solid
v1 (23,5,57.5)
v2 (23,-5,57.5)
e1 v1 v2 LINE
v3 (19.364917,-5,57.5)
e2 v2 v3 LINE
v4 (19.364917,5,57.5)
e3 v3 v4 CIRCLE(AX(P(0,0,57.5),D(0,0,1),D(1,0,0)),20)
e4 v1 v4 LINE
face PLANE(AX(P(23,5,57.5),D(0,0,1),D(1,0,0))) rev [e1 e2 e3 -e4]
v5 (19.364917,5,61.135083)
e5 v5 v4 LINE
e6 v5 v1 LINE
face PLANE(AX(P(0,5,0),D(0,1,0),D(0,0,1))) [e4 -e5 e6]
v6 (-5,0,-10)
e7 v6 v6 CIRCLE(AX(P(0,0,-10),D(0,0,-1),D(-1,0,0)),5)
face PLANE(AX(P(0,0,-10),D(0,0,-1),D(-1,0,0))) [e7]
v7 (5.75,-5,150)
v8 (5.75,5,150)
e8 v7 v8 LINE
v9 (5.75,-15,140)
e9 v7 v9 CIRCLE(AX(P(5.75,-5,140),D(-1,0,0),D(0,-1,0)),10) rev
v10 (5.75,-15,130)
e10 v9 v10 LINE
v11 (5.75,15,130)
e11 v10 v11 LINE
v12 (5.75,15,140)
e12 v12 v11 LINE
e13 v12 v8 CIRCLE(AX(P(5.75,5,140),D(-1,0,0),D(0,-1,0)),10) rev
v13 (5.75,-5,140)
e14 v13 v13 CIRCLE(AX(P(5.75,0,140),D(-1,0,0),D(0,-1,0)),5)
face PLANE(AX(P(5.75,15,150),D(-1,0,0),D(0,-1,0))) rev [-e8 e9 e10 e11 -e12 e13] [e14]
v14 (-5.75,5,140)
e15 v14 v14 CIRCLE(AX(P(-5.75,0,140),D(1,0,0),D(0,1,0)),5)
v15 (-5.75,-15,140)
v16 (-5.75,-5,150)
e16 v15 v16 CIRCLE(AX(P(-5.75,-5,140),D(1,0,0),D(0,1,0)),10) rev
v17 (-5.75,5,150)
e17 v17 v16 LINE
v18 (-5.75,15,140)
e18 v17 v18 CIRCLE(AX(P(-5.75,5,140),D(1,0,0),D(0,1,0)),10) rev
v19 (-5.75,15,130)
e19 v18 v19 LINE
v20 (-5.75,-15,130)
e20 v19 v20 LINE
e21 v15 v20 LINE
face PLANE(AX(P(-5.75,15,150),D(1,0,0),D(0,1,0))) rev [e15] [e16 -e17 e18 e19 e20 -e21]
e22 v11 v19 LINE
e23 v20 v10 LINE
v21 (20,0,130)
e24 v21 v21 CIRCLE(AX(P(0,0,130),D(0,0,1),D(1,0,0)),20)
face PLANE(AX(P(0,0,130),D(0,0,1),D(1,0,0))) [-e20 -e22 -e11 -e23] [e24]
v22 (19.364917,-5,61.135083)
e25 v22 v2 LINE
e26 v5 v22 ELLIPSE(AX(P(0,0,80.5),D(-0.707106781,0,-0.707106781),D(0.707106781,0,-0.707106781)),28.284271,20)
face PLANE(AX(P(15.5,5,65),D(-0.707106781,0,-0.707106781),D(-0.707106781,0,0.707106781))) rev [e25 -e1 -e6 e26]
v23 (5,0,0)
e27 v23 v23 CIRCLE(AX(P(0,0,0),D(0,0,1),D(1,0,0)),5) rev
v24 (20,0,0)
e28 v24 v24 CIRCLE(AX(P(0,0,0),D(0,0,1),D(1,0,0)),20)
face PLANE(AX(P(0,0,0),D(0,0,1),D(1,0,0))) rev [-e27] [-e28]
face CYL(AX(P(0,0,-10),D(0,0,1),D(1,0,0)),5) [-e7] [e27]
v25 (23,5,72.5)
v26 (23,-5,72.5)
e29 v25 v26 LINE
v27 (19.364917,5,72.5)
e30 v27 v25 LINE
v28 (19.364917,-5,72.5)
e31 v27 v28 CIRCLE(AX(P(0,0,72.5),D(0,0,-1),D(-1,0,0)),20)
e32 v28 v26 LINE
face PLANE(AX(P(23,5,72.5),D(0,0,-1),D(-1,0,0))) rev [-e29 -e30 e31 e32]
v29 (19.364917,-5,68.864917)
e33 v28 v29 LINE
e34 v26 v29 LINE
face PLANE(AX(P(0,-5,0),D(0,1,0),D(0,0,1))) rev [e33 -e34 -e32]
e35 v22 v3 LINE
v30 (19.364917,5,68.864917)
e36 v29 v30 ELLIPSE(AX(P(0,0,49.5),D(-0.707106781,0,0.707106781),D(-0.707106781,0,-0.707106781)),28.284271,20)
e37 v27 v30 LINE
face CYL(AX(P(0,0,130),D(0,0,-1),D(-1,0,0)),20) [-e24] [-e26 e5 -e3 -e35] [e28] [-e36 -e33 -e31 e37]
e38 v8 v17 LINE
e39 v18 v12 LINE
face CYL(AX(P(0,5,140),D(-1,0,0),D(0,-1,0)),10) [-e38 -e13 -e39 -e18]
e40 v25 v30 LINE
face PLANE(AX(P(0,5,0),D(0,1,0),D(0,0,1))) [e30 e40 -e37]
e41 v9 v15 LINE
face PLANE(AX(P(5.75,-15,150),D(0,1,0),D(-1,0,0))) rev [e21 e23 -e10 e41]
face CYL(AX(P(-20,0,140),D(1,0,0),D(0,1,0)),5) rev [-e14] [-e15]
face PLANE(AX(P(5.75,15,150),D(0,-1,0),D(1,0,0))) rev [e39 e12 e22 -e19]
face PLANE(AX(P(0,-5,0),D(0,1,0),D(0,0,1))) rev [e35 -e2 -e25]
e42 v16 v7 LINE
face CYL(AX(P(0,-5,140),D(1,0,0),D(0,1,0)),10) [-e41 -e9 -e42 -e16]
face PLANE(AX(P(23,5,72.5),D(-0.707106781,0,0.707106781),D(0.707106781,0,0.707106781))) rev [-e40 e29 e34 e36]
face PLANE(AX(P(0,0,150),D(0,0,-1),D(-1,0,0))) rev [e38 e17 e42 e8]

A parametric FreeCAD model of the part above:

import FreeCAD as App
import Part
import Sketcher


def edges_at(feature, points):
    """Names of the edges that pass closest to the given points."""
    edges = feature.Shape.Edges
    near = lambda p: min(range(len(edges)), key=lambda i: edges[i].distToShape(Part.Vertex(*p))[0])
    return sorted({f"Edge{near(p) + 1}" for p in points})

doc = App.newDocument("Part")
params = doc.addObject("Spreadsheet::Sheet", "Params")
for row, (alias, value) in enumerate([
    ("sketch1_diameter", "40 mm"),
    ("pad1_length", "130 mm"),
    ("sketch2_width", "15 mm"),
    ("pad2_length", "10 mm"),
    ("sketch3_diameter", "10 mm"),
    ("pad3_length", "10 mm"),
    ("sketch4_height", "30 mm"),
    ("sketch4_width", "11.5 mm"),
    ("pad4_length", "20 mm"),
    ("fillet_radius", "10 mm"),
    ("sketch5_diameter", "10 mm"),
], start=1):
    params.set(f"A{row}", alias)
    params.set(f"B{row}", "=" + value)
    params.setAlias(f"B{row}", alias)

body = doc.addObject("PartDesign::Body", "Body")

sketch1 = body.newObject("Sketcher::SketchObject", "Sketch")
sketch1.AttachmentSupport = (doc.getObject("XY_Plane"), [""])
sketch1.MapMode = "FlatFace"
sketch1.addGeometry(Part.Circle(App.Vector(0, 0, 0), App.Vector(0, 0, 1), 20), False)
sketch1.addConstraint(Sketcher.Constraint("Coincident", 0, 3, -1, 1))
sketch1.addConstraint(Sketcher.Constraint("Diameter", 0, 40.0))
sketch1.setExpression("Constraints[1]", "Params.sketch1_diameter")
pad1 = body.newObject("PartDesign::Pad", "Pad")
pad1.Profile = sketch1
pad1.setExpression("Length", "Params.pad1_length")

sketch2 = body.newObject("Sketcher::SketchObject", "Sketch001")
sketch2.AttachmentSupport = (doc.getObject("XZ_Plane"), [""])
sketch2.MapMode = "FlatFace"
sketch2.addGeometry(Part.LineSegment(App.Vector(23, 72.5, 0), App.Vector(15.5, 65, 0)), False)
sketch2.addGeometry(Part.LineSegment(App.Vector(15.5, 65, 0), App.Vector(23, 57.5, 0)), False)
sketch2.addGeometry(Part.LineSegment(App.Vector(23, 57.5, 0), App.Vector(8, 57.5, 0)), False)
sketch2.addGeometry(Part.LineSegment(App.Vector(8, 57.5, 0), App.Vector(8, 72.5, 0)), False)
sketch2.addGeometry(Part.LineSegment(App.Vector(8, 72.5, 0), App.Vector(23, 72.5, 0)), False)
sketch2.addConstraint(Sketcher.Constraint("Coincident", 0, 2, 1, 1))
sketch2.addConstraint(Sketcher.Constraint("Coincident", 1, 2, 2, 1))
sketch2.addConstraint(Sketcher.Constraint("Coincident", 2, 2, 3, 1))
sketch2.addConstraint(Sketcher.Constraint("Coincident", 3, 2, 4, 1))
sketch2.addConstraint(Sketcher.Constraint("Coincident", 4, 2, 0, 1))
sketch2.addConstraint(Sketcher.Constraint("Horizontal", 2))
sketch2.addConstraint(Sketcher.Constraint("Vertical", 3))
sketch2.addConstraint(Sketcher.Constraint("Horizontal", 4))
sketch2.addConstraint(Sketcher.Constraint("Perpendicular", 0, 1))
sketch2.addConstraint(Sketcher.Constraint("Vertical", 1, 2, 4, 2))
sketch2.addConstraint(Sketcher.Constraint("Equal", 4, 3))
sketch2.addConstraint(Sketcher.Constraint("Equal", 0, 1))
sketch2.addConstraint(Sketcher.Constraint("DistanceX", 2, 2, 2, 1, 15.0))
sketch2.addConstraint(Sketcher.Constraint("DistanceY", -1, 1, 0, 2, 65.0))
sketch2.addConstraint(Sketcher.Constraint("DistanceX", -1, 1, 1, 2, 23.0))
sketch2.setExpression("Constraints[12]", "Params.sketch2_width")
pad2 = body.newObject("PartDesign::Pad", "Pad001")
pad2.Profile = sketch2
pad2.setExpression("Length", "Params.pad2_length")
pad2.Midplane = True

sketch3 = body.newObject("Sketcher::SketchObject", "Sketch002")
sketch3.AttachmentSupport = (doc.getObject("XY_Plane"), [""])
sketch3.MapMode = "FlatFace"
sketch3.addGeometry(Part.Circle(App.Vector(0, 0, 0), App.Vector(0, 0, 1), 5), False)
sketch3.addConstraint(Sketcher.Constraint("Coincident", 0, 3, -1, 1))
sketch3.addConstraint(Sketcher.Constraint("Diameter", 0, 10.0))
sketch3.setExpression("Constraints[1]", "Params.sketch3_diameter")
pad3 = body.newObject("PartDesign::Pad", "Pad002")
pad3.Profile = sketch3
pad3.setExpression("Length", "Params.pad3_length")
pad3.Reversed = True

sketch4 = body.newObject("Sketcher::SketchObject", "Sketch003")
sketch4.AttachmentSupport = (doc.getObject("XY_Plane"), [""])
sketch4.MapMode = "FlatFace"
sketch4.AttachmentOffset = App.Placement(App.Vector(0, 0, 130), App.Rotation())
sketch4.addGeometry(Part.LineSegment(App.Vector(-5.75, 15, 0), App.Vector(-5.75, -15, 0)), False)
sketch4.addGeometry(Part.LineSegment(App.Vector(-5.75, -15, 0), App.Vector(5.75, -15, 0)), False)
sketch4.addGeometry(Part.LineSegment(App.Vector(5.75, -15, 0), App.Vector(5.75, 15, 0)), False)
sketch4.addGeometry(Part.LineSegment(App.Vector(5.75, 15, 0), App.Vector(-5.75, 15, 0)), False)
sketch4.addConstraint(Sketcher.Constraint("Coincident", 0, 2, 1, 1))
sketch4.addConstraint(Sketcher.Constraint("Coincident", 1, 2, 2, 1))
sketch4.addConstraint(Sketcher.Constraint("Coincident", 2, 2, 3, 1))
sketch4.addConstraint(Sketcher.Constraint("Coincident", 3, 2, 0, 1))
sketch4.addConstraint(Sketcher.Constraint("Vertical", 0))
sketch4.addConstraint(Sketcher.Constraint("Horizontal", 1))
sketch4.addConstraint(Sketcher.Constraint("Vertical", 2))
sketch4.addConstraint(Sketcher.Constraint("Horizontal", 3))
sketch4.addConstraint(Sketcher.Constraint("Symmetric", 0, 2, 2, 2, -1, 1))
sketch4.addConstraint(Sketcher.Constraint("DistanceY", 0, 2, 0, 1, 30.0))
sketch4.addConstraint(Sketcher.Constraint("DistanceX", 1, 1, 1, 2, 11.5))
sketch4.setExpression("Constraints[9]", "Params.sketch4_height")
sketch4.setExpression("Constraints[10]", "Params.sketch4_width")
pad4 = body.newObject("PartDesign::Pad", "Pad003")
pad4.Profile = sketch4
pad4.setExpression("Length", "Params.pad4_length")
doc.recompute()

fillet = body.newObject("PartDesign::Fillet", "Fillet")
fillet.Base = (pad4, edges_at(pad4, [(0, -15, 150), (0, 15, 150)]))
fillet.setExpression("Radius", "Params.fillet_radius")

sketch5 = body.newObject("Sketcher::SketchObject", "Sketch004")
sketch5.AttachmentSupport = (doc.getObject("YZ_Plane"), [""])
sketch5.MapMode = "FlatFace"
sketch5.AttachmentOffset = App.Placement(App.Vector(0, 0, 5.75), App.Rotation())
sketch5.addGeometry(Part.Circle(App.Vector(0, 140, 0), App.Vector(0, 0, 1), 5), False)
sketch5.addConstraint(Sketcher.Constraint("PointOnObject", 0, 3, -2))
sketch5.addConstraint(Sketcher.Constraint("Diameter", 0, 10.0))
sketch5.addConstraint(Sketcher.Constraint("DistanceY", -1, 1, 0, 3, 140.0))
sketch5.setExpression("Constraints[1]", "Params.sketch5_diameter")
pocket1 = body.newObject("PartDesign::Pocket", "Pocket")
pocket1.Profile = sketch5
pocket1.Type = "ThroughAll"
pocket1.Midplane = True

doc.recompute()
